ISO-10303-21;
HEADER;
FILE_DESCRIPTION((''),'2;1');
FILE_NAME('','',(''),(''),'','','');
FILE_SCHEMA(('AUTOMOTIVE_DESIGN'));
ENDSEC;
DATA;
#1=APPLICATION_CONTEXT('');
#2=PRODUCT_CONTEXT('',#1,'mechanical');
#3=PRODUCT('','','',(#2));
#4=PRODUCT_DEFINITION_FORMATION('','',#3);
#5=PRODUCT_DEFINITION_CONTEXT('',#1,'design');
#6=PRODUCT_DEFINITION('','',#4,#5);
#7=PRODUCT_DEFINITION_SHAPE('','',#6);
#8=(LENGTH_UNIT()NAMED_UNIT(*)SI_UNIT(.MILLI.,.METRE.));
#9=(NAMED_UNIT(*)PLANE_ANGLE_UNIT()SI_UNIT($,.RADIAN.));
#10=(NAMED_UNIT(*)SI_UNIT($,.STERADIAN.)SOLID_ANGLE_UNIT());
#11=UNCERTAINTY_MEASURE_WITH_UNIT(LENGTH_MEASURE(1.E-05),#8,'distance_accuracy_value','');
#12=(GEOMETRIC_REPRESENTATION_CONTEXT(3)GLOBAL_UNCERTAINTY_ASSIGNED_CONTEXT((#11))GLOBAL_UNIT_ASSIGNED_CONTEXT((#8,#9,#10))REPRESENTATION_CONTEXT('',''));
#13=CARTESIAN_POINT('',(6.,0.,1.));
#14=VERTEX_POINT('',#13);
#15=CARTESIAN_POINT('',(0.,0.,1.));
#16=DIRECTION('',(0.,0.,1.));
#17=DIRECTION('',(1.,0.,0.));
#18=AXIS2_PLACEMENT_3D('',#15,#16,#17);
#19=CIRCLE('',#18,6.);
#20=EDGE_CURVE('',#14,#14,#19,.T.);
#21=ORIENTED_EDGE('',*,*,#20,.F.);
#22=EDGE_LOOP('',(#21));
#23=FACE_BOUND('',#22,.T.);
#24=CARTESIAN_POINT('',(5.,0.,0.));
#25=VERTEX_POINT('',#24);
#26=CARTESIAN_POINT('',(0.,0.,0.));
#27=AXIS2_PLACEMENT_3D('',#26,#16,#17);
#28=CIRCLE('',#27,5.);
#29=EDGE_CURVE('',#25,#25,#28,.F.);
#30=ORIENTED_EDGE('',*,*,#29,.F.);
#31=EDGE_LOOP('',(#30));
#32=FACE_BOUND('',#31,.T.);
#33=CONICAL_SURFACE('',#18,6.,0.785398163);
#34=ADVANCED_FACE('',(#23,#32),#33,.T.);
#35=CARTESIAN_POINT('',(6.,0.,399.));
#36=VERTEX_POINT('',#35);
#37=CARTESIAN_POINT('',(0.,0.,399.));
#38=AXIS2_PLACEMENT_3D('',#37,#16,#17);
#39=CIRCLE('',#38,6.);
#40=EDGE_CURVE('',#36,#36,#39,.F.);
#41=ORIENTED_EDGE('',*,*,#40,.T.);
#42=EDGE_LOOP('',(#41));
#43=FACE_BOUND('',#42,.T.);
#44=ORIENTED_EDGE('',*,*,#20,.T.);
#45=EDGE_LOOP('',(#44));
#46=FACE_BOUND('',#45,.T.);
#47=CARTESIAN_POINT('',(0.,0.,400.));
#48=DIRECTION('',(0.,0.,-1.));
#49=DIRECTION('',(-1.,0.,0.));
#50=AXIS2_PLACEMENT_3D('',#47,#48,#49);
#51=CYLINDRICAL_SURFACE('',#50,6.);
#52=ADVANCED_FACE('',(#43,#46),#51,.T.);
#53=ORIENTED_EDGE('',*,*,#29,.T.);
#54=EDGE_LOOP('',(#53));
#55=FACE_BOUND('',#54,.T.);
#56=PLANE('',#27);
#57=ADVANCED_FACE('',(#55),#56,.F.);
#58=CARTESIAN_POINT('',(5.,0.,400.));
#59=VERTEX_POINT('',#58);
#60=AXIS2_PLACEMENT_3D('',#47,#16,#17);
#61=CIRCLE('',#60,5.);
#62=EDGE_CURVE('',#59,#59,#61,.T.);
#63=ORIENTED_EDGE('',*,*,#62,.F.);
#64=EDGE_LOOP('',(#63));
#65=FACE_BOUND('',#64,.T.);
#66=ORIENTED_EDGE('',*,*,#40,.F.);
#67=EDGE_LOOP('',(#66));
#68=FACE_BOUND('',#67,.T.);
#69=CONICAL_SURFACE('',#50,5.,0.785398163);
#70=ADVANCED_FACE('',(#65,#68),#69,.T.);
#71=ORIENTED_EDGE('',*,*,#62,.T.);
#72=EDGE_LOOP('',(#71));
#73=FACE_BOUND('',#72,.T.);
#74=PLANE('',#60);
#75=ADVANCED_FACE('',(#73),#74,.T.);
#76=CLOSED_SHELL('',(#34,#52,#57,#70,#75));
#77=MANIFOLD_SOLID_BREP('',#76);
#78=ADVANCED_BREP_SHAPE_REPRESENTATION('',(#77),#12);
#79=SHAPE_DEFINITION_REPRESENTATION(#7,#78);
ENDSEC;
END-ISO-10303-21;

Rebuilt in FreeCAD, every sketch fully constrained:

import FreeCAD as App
import Part
import Sketcher
from FreeCAD import Vector
Q = App.Units.Quantity


def edges_at(feature, points):
    """Names of the edges that pass closest to the given points."""
    edges = feature.Shape.Edges
    near = lambda p: min(range(len(edges)), key=lambda i: edges[i].distToShape(Part.Vertex(*p))[0])
    return sorted({f"Edge{near(p) + 1}" for p in points})

doc = App.newDocument("Part")
body = doc.addObject("PartDesign::Body", "Body")

# Sketch on XY plane
sketch1 = doc.addObject("Sketcher::SketchObject", "Sketch")
body.addObject(sketch1)
sketch1.AttachmentSupport = (doc.XY_Plane, [""])
sketch1.MapMode = "FlatFace"
sketch1.addGeometry(Part.Circle(Vector(0, 0, 0), Vector(0, 0, 1), 6), False)
sketch1.addConstraint([
    Sketcher.Constraint("Coincident", 0, 3, -1, 1),
    Sketcher.Constraint("Diameter", 0, Q("12 mm")),
])
pad1 = doc.addObject("PartDesign::Pad", "Pad")
body.addObject(pad1)
pad1.Profile = sketch1
pad1.Length = 400
doc.recompute()

chamfer = doc.addObject("PartDesign::Chamfer", "Chamfer")
body.addObject(chamfer)
chamfer.Base = (pad1, edges_at(pad1, [(-6, 0, 0), (-6, 0, 400)]))
chamfer.Size = 1

doc.recompute()
